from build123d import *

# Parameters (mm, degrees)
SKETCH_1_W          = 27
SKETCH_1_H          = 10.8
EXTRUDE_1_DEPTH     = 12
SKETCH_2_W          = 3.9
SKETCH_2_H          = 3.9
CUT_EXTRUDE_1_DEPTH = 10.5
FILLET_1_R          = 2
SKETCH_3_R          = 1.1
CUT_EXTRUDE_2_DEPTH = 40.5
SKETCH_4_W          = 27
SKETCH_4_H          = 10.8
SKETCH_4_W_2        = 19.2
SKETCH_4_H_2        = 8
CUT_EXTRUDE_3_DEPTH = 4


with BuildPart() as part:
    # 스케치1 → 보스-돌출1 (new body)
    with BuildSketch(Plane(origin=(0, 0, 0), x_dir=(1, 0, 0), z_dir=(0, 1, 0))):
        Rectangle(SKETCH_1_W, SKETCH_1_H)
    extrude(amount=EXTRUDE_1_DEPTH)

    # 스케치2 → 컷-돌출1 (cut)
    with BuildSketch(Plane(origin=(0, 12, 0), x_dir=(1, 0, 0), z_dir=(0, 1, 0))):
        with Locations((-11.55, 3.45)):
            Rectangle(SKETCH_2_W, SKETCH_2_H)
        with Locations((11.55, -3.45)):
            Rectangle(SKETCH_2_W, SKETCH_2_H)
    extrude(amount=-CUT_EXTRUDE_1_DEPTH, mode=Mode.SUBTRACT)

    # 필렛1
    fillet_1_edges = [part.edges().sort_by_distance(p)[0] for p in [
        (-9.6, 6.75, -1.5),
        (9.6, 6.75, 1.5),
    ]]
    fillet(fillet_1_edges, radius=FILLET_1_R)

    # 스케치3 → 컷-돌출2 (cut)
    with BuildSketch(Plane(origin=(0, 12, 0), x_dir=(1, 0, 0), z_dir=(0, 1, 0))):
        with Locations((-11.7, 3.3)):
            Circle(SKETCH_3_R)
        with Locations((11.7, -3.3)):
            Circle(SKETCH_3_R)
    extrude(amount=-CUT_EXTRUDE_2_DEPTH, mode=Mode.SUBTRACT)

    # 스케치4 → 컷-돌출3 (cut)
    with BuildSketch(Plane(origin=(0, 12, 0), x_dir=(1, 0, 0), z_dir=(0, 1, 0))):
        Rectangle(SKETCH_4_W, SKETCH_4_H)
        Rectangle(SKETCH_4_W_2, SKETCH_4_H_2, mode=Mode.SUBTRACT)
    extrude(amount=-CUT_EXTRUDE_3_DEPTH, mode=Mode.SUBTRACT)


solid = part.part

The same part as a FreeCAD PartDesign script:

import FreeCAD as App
import Part
import Sketcher
Q = App.Units.Quantity


def edges_at(feature, points):
    """Names of the edges that pass closest to the given points."""
    edges = feature.Shape.Edges
    near = lambda p: min(range(len(edges)), key=lambda i: edges[i].distToShape(Part.Vertex(*p))[0])
    return sorted({f"Edge{near(p) + 1}" for p in points})


def add_polygon(sketch, points):
    """Adds a closed chain of lines whose ends are joined by coincident constraints."""
    first, n = sketch.GeometryCount, len(points)
    for a, b in zip(points, points[1:] + points[:1]):
        sketch.addGeometry(Part.LineSegment(App.Vector(*a, 0), App.Vector(*b, 0)), False)
    for i in range(n):
        sketch.addConstraint(Sketcher.Constraint("Coincident", first + i, 2, first + (i + 1) % n, 1))

doc = App.newDocument("Part")
body = doc.addObject("PartDesign::Body", "Body")

sketch1 = body.newObject("Sketcher::SketchObject", "Sketch")
sketch1.AttachmentSupport = (doc.getObject("XZ_Plane"), [""])
sketch1.MapMode = "FlatFace"
add_polygon(sketch1, [(-14, -5), (-14, 5), (14, 5), (14, -5)])
sketch1.addConstraint(Sketcher.Constraint("Vertical", 0))
sketch1.addConstraint(Sketcher.Constraint("Horizontal", 1))
sketch1.addConstraint(Sketcher.Constraint("Vertical", 2))
sketch1.addConstraint(Sketcher.Constraint("Horizontal", 3))
sketch1.addConstraint(Sketcher.Constraint("Symmetric", 0, 2, 2, 2, -1, 1))
sketch1.addConstraint(Sketcher.Constraint("DistanceX", 1, 1, 1, 2, Q("27 mm")))
sketch1.addConstraint(Sketcher.Constraint("DistanceY", 0, 1, 0, 2, Q("10.8 mm")))
pad1 = body.newObject("PartDesign::Pad", "Pad")
pad1.Profile = sketch1
pad1.Length = 12
pad1.Reversed = True

sketch2 = body.newObject("Sketcher::SketchObject", "Sketch001")
sketch2.AttachmentSupport = (doc.getObject("XZ_Plane"), [""])
sketch2.MapMode = "FlatFace"
sketch2.AttachmentOffset = App.Placement(App.Vector(0, 0, -12), App.Rotation())
add_polygon(sketch2, [(-13.5, -5.4), (-13.5, -1.5), (-9.6, -1.5), (-9.6, -5.4)])
add_polygon(sketch2, [(9.6, 1.5), (9.6, 5.4), (13.5, 5.4), (13.5, 1.5)])
sketch2.addConstraint(Sketcher.Constraint("Vertical", 0))
sketch2.addConstraint(Sketcher.Constraint("Horizontal", 1))
sketch2.addConstraint(Sketcher.Constraint("Vertical", 2))
sketch2.addConstraint(Sketcher.Constraint("Horizontal", 3))
sketch2.addConstraint(Sketcher.Constraint("Vertical", 4))
sketch2.addConstraint(Sketcher.Constraint("Horizontal", 5))
sketch2.addConstraint(Sketcher.Constraint("Vertical", 6))
sketch2.addConstraint(Sketcher.Constraint("Horizontal", 7))
sketch2.addConstraint(Sketcher.Constraint("Symmetric", 2, 2, 4, 2, -1, 1))
sketch2.addConstraint(Sketcher.Constraint("Symmetric", 0, 2, 6, 2, -1, 1))
sketch2.addConstraint(Sketcher.Constraint("Equal", 7, 0))
sketch2.addConstraint(Sketcher.Constraint("DistanceX", 1, 1, 1, 2, Q("3.9 mm")))
sketch2.addConstraint(Sketcher.Constraint("DistanceX", 0, 2, 5, 2, Q("27 mm")))
sketch2.addConstraint(Sketcher.Constraint("DistanceY", 1, 2, 6, 2, Q("3 mm")))
pocket1 = body.newObject("PartDesign::Pocket", "Pocket")
pocket1.Profile = sketch2
pocket1.Length = 10.5
pocket1.Reversed = True
doc.recompute()

fillet = body.newObject("PartDesign::Fillet", "Fillet")
fillet.Base = (pocket1, edges_at(pocket1, [(-9.6, 6.75, -1.5), (9.6, 6.75, 1.5)]))
fillet.Radius = 2

sketch3 = body.newObject("Sketcher::SketchObject", "Sketch002")
sketch3.AttachmentSupport = (doc.getObject("XZ_Plane"), [""])
sketch3.MapMode = "FlatFace"
sketch3.AttachmentOffset = App.Placement(App.Vector(0, 0, -12), App.Rotation())
sketch3.addGeometry(Part.Circle(App.Vector(-11.7, -3.3, 0), App.Vector(0, 0, 1), 1.1), False)
sketch3.addGeometry(Part.Circle(App.Vector(11.7, 3.3, 0), App.Vector(0, 0, 1), 1.1), False)
sketch3.addConstraint(Sketcher.Constraint("Equal", 0, 1))
sketch3.addConstraint(Sketcher.Constraint("Symmetric", 0, 3, 1, 3, -1, 1))
sketch3.addConstraint(Sketcher.Constraint("Diameter", 0, Q("2.2 mm")))
sketch3.addConstraint(Sketcher.Constraint("DistanceX", 0, 3, -1, 1, Q("11.7 mm")))
sketch3.addConstraint(Sketcher.Constraint("DistanceY", 0, 3, -1, 1, Q("3.3 mm")))
pocket2 = body.newObject("PartDesign::Pocket", "Pocket001")
pocket2.Profile = sketch3
pocket2.Length = 40.5
pocket2.Reversed = True

sketch4 = body.newObject("Sketcher::SketchObject", "Sketch003")
sketch4.AttachmentSupport = (doc.getObject("XZ_Plane"), [""])
sketch4.MapMode = "FlatFace"
sketch4.AttachmentOffset = App.Placement(App.Vector(0, 0, -12), App.Rotation())
add_polygon(sketch4, [(-14, -5), (-14, 5), (14, 5), (14, -5)])
add_polygon(sketch4, [(10, 4), (-10, 4), (-10, -4), (10, -4)])
sketch4.addConstraint(Sketcher.Constraint("Vertical", 0))
sketch4.addConstraint(Sketcher.Constraint("Horizontal", 1))
sketch4.addConstraint(Sketcher.Constraint("Vertical", 2))
sketch4.addConstraint(Sketcher.Constraint("Horizontal", 3))
sketch4.addConstraint(Sketcher.Constraint("Horizontal", 4))
sketch4.addConstraint(Sketcher.Constraint("Vertical", 5))
sketch4.addConstraint(Sketcher.Constraint("Horizontal", 6))
sketch4.addConstraint(Sketcher.Constraint("Vertical", 7))
sketch4.addConstraint(Sketcher.Constraint("Symmetric", 0, 2, 2, 2, -1, 1))
sketch4.addConstraint(Sketcher.Constraint("Symmetric", 4, 2, 6, 2, -1, 1))
sketch4.addConstraint(Sketcher.Constraint("DistanceX", 1, 1, 1, 2, Q("27 mm")))
sketch4.addConstraint(Sketcher.Constraint("DistanceY", 5, 2, 5, 1, Q("8 mm")))
sketch4.addConstraint(Sketcher.Constraint("DistanceX", 4, 2, 4, 1, Q("19.2 mm")))
sketch4.addConstraint(Sketcher.Constraint("DistanceY", 0, 1, 0, 2, Q("10.8 mm")))
pocket3 = body.newObject("PartDesign::Pocket", "Pocket002")
pocket3.Profile = sketch4
pocket3.Length = 4
pocket3.Reversed = True

doc.recompute()
